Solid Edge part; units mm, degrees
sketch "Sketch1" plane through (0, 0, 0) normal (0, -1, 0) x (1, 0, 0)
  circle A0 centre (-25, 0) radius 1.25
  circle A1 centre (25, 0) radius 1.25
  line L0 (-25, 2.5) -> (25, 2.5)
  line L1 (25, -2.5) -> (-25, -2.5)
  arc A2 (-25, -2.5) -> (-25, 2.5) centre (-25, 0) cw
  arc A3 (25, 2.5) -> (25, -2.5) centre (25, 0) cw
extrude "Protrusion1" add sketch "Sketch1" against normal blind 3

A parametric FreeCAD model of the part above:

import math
import FreeCAD as App
import Part
import Sketcher

doc = App.newDocument("Part")
body = doc.addObject("PartDesign::Body", "Body")

# Sketch on XZ plane
sketch1 = body.newObject("Sketcher::SketchObject", "Sketch")
sketch1.AttachmentSupport = (doc.getObject("XZ_Plane"), [""])
sketch1.MapMode = "FlatFace"
sketch1.addGeometry([
    Part.LineSegment(App.Vector(25, 2.5, 0), App.Vector(-25, 2.5, 0)),  # 0
    Part.ArcOfCircle(Part.Circle(App.Vector(-25, 0, 0), App.Vector(0, 0, 1), 2.5), math.radians(90), math.radians(270)),  # 1
    Part.LineSegment(App.Vector(-25, -2.5, 0), App.Vector(25, -2.5, 0)),  # 2
    Part.ArcOfCircle(Part.Circle(App.Vector(25, 0, 0), App.Vector(0, 0, 1), 2.5), math.radians(-90), math.radians(90)),  # 3
    Part.Circle(App.Vector(-25, 0, 0), App.Vector(0, 0, 1), 1.2),  # 4
    Part.Circle(App.Vector(25, 0, 0), App.Vector(0, 0, 1), 1.2),  # 5
], False)
sketch1.addConstraint([
    Sketcher.Constraint("Tangent", 0, 2, 1, 1),
    Sketcher.Constraint("Tangent", 1, 2, 2, 1),
    Sketcher.Constraint("Tangent", 2, 2, 3, 1),
    Sketcher.Constraint("Tangent", 3, 2, 0, 1),
    Sketcher.Constraint("Horizontal", 0),
    Sketcher.Constraint("Horizontal", 2),
    Sketcher.Constraint("Coincident", 4, 3, 1, 3),
    Sketcher.Constraint("Coincident", 5, 3, 3, 3),
    Sketcher.Constraint("Equal", 4, 5),
    Sketcher.Constraint("Symmetric", 1, 3, 3, 3, -1, 1),
    Sketcher.Constraint("Diameter", 4, 2.5),
    Sketcher.Constraint("Radius", 1, 2.5),
    Sketcher.Constraint("DistanceX", 0, 2, 0, 1, 50.0),
])
pad1 = body.newObject("PartDesign::Pad", "Pad")
pad1.Profile = sketch1
pad1.Length = 3
pad1.Reversed = True

doc.recompute()
